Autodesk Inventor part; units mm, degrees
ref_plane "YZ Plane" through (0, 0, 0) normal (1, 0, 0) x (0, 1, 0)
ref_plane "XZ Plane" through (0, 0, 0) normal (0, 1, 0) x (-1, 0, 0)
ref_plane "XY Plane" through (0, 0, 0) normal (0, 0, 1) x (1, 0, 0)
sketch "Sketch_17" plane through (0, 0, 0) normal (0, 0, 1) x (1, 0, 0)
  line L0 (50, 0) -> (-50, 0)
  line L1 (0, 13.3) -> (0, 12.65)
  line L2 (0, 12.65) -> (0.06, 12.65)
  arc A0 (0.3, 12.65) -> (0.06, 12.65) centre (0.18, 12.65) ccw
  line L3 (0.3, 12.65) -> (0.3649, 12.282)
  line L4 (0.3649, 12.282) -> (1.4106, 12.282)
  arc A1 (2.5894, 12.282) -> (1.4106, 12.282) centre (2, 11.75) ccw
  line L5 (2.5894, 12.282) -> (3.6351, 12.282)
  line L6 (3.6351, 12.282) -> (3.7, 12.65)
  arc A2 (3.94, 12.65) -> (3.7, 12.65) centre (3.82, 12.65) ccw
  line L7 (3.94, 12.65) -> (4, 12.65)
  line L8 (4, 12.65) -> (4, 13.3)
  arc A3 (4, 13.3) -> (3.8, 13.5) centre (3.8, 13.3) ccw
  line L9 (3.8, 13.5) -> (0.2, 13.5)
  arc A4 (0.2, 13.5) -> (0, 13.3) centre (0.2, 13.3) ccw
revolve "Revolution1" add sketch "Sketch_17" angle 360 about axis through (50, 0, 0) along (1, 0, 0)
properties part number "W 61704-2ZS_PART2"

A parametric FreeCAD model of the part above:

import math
import FreeCAD as App
import Part
import Sketcher
from FreeCAD import Vector
Q = App.Units.Quantity

doc = App.newDocument("Part")
body = doc.addObject("PartDesign::Body", "Body")

# Sketch on XY plane
sketch1 = body.newObject("Sketcher::SketchObject", "Sketch")
sketch1.AttachmentSupport = (doc.getObject("XY_Plane"), [""])
sketch1.MapMode = "FlatFace"
sketch1.addGeometry([
    Part.ArcOfCircle(Part.Circle(Vector(0.2, 13.3, 0), Vector(0, 0, 1), 0.2), math.radians(90), math.radians(180)),  # 0
    Part.LineSegment(Vector(0, 13.3, 0), Vector(0, 12.65, 0)),  # 1
    Part.LineSegment(Vector(0, 12.65, 0), Vector(0.06, 12.65, 0)),  # 2
    Part.ArcOfCircle(Part.Circle(Vector(0.18, 12.65, 0), Vector(0, 0, 1), 0.12), math.radians(0), math.radians(180)),  # 3
    Part.LineSegment(Vector(0.3, 12.65, 0), Vector(0.3649, 12.282, 0)),  # 4
    Part.LineSegment(Vector(0.3649, 12.282, 0), Vector(1.4106, 12.282, 0)),  # 5
    Part.ArcOfCircle(Part.Circle(Vector(2, 11.75, 0), Vector(0, 0, 1), 0.793988), math.radians(42.069814), math.radians(137.930186)),  # 6
    Part.LineSegment(Vector(2.5894, 12.282, 0), Vector(3.6351, 12.282, 0)),  # 7
    Part.LineSegment(Vector(3.6351, 12.282, 0), Vector(3.7, 12.65, 0)),  # 8
    Part.ArcOfCircle(Part.Circle(Vector(3.82, 12.65, 0), Vector(0, 0, 1), 0.12), math.radians(0), math.radians(180)),  # 9
    Part.LineSegment(Vector(3.94, 12.65, 0), Vector(4, 12.65, 0)),  # 10
    Part.LineSegment(Vector(4, 12.65, 0), Vector(4, 13.3, 0)),  # 11
    Part.ArcOfCircle(Part.Circle(Vector(3.8, 13.3, 0), Vector(0, 0, 1), 0.2), math.radians(0), math.radians(90)),  # 12
    Part.LineSegment(Vector(3.8, 13.5, 0), Vector(0.2, 13.5, 0)),  # 13
], False)
sketch1.addConstraint([
    Sketcher.Constraint("Tangent", 0, 2, 1, 1),
    Sketcher.Constraint("Coincident", 1, 2, 2, 1),
    Sketcher.Constraint("Coincident", 2, 2, 3, 2),
    Sketcher.Constraint("Coincident", 3, 1, 4, 1),
    Sketcher.Constraint("Coincident", 4, 2, 5, 1),
    Sketcher.Constraint("Coincident", 5, 2, 6, 2),
    Sketcher.Constraint("Coincident", 6, 1, 7, 1),
    Sketcher.Constraint("Coincident", 7, 2, 8, 1),
    Sketcher.Constraint("Coincident", 8, 2, 9, 2),
    Sketcher.Constraint("Coincident", 9, 1, 10, 1),
    Sketcher.Constraint("Coincident", 10, 2, 11, 1),
    Sketcher.Constraint("Tangent", 11, 2, 12, 1),
    Sketcher.Constraint("Tangent", 12, 2, 13, 1),
    Sketcher.Constraint("Tangent", 13, 2, 0, 1),
    Sketcher.Constraint("Vertical", 1),
    Sketcher.Constraint("Horizontal", 2),
    Sketcher.Constraint("Horizontal", 5),
    Sketcher.Constraint("Horizontal", 7),
    Sketcher.Constraint("Horizontal", 10),
    Sketcher.Constraint("Vertical", 11),
    Sketcher.Constraint("Horizontal", 13),
    Sketcher.Constraint("Equal", 3, 9),
    Sketcher.Constraint("Equal", 0, 12),
    Sketcher.Constraint("PointOnObject", 0, 2, -2),
    Sketcher.Constraint("Horizontal", 3, 3, 9, 3),
    Sketcher.Constraint("Horizontal", 9, 3, 1, 2),
    Sketcher.Constraint("Horizontal", 2, 2, 3, 1),
    Sketcher.Constraint("Horizontal", 5, 2, 6, 1),
    Sketcher.Constraint("Horizontal", 3, 1, 8, 2),
    Sketcher.Constraint("Horizontal", 8, 2, 9, 1),
    Sketcher.Constraint("Equal", 5, 7),
    Sketcher.Constraint("Equal", 2, 10),
    Sketcher.Constraint("Equal", 4, 8),
    Sketcher.Constraint("Radius", 0, Q("0.2 mm")),
    Sketcher.Constraint("Radius", 3, Q("0.12 mm")),
    Sketcher.Constraint("DistanceX", 13, 2, 13, 1, Q("3.6 mm")),
    Sketcher.Constraint("Radius", 6, Q("0.794 mm")),
    Sketcher.Constraint("DistanceX", 2, 1, 2, 2, Q("0.06 mm")),
    Sketcher.Constraint("DistanceY", 1, 2, 1, 1, Q("0.65 mm")),
    Sketcher.Constraint("DistanceY", -1, 1, 0, 3, Q("13.3 mm")),
    Sketcher.Constraint("DistanceY", 6, 3, 3, 3, Q("0.9 mm")),
    Sketcher.Constraint("DistanceX", 5, 1, 5, 2, Q("1.0457 mm")),
    Sketcher.Constraint("DistanceX", -1, 1, 4, 2, Q("0.365 mm")),
])
revolution = body.newObject("PartDesign::Revolution", "Revolution")
revolution.Profile = sketch1
revolution.ReferenceAxis = (sketch1, ["H_Axis"])
revolution.Angle = 360

doc.recompute()
